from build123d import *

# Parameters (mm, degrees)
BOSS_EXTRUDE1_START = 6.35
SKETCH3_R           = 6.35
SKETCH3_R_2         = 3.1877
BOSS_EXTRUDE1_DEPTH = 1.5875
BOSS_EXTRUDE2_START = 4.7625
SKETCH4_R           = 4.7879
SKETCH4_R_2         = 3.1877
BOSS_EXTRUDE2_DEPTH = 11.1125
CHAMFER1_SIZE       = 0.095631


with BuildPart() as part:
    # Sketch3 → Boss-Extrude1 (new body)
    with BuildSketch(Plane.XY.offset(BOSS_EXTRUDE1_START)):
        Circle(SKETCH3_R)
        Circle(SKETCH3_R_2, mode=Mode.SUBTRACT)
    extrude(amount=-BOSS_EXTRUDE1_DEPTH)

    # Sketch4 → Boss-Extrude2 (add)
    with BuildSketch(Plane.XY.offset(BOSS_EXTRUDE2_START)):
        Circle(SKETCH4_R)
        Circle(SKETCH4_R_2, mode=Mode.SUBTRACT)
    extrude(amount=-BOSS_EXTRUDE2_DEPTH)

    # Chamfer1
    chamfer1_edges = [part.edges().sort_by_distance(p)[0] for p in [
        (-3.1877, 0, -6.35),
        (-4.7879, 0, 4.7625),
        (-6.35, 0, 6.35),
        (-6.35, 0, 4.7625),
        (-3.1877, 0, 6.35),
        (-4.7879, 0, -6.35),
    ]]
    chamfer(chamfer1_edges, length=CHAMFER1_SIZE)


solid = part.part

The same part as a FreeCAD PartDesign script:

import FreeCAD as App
import Part
import Sketcher
from FreeCAD import Vector
Q = App.Units.Quantity


def edges_at(feature, points):
    """Names of the edges that pass closest to the given points."""
    edges = feature.Shape.Edges
    near = lambda p: min(range(len(edges)), key=lambda i: edges[i].distToShape(Part.Vertex(*p))[0])
    return sorted({f"Edge{near(p) + 1}" for p in points})

doc = App.newDocument("Part")
body = doc.addObject("PartDesign::Body", "Body")

# Sketch on XY plane
sketch1 = body.newObject("Sketcher::SketchObject", "Sketch")
sketch1.AttachmentSupport = (doc.getObject("XY_Plane"), [""])
sketch1.MapMode = "FlatFace"
sketch1.AttachmentOffset = App.Placement(Vector(0, 0, 0.25 * 25.4), App.Rotation())
sketch1.addGeometry([
    Part.Circle(Vector(0, 0, 0), Vector(0, 0, 1), 6.3),
    Part.Circle(Vector(0, 0, 0), Vector(0, 0, 1), 3.2),
], False)
sketch1.addConstraint([
    Sketcher.Constraint("Coincident", 0, 3, -1, 1),
    Sketcher.Constraint("Coincident", 1, 3, -1, 1),
    Sketcher.Constraint("Diameter", 0, Q("0.5 in")),
    Sketcher.Constraint("Diameter", 1, Q("0.251 in")),
])
pad1 = body.newObject("PartDesign::Pad", "Pad")
pad1.Profile = sketch1
pad1.Length = Q("0.0625 in")
pad1.Reversed = True

# Sketch on XY plane
sketch2 = body.newObject("Sketcher::SketchObject", "Sketch001")
sketch2.AttachmentSupport = (doc.getObject("XY_Plane"), [""])
sketch2.MapMode = "FlatFace"
sketch2.AttachmentOffset = App.Placement(Vector(0, 0, 0.1875 * 25.4), App.Rotation())
sketch2.addGeometry([
    Part.Circle(Vector(0, 0, 0), Vector(0, 0, 1), 4.8),
    Part.Circle(Vector(0, 0, 0), Vector(0, 0, 1), 3.2),
], False)
sketch2.addConstraint([
    Sketcher.Constraint("Coincident", 0, 3, -1, 1),
    Sketcher.Constraint("Coincident", 1, 3, -1, 1),
    Sketcher.Constraint("Diameter", 0, Q("0.377 in")),
    Sketcher.Constraint("Diameter", 1, Q("0.251 in")),
])
pad2 = body.newObject("PartDesign::Pad", "Pad001")
pad2.Profile = sketch2
pad2.Length = Q("0.4375 in")
pad2.Reversed = True
doc.recompute()

chamfer = body.newObject("PartDesign::Chamfer", "Chamfer")
chamfer.Base = (pad2, edges_at(pad2, [
    (-3.188, 0, -6.35),
    (-4.788, 0, 4.763),
    (-6.35, 0, 6.35),
    (-6.35, 0, 4.763),
    (-3.188, 0, 6.35),
    (-4.788, 0, -6.35),
]))
chamfer.Size = 0.095631

doc.recompute()
